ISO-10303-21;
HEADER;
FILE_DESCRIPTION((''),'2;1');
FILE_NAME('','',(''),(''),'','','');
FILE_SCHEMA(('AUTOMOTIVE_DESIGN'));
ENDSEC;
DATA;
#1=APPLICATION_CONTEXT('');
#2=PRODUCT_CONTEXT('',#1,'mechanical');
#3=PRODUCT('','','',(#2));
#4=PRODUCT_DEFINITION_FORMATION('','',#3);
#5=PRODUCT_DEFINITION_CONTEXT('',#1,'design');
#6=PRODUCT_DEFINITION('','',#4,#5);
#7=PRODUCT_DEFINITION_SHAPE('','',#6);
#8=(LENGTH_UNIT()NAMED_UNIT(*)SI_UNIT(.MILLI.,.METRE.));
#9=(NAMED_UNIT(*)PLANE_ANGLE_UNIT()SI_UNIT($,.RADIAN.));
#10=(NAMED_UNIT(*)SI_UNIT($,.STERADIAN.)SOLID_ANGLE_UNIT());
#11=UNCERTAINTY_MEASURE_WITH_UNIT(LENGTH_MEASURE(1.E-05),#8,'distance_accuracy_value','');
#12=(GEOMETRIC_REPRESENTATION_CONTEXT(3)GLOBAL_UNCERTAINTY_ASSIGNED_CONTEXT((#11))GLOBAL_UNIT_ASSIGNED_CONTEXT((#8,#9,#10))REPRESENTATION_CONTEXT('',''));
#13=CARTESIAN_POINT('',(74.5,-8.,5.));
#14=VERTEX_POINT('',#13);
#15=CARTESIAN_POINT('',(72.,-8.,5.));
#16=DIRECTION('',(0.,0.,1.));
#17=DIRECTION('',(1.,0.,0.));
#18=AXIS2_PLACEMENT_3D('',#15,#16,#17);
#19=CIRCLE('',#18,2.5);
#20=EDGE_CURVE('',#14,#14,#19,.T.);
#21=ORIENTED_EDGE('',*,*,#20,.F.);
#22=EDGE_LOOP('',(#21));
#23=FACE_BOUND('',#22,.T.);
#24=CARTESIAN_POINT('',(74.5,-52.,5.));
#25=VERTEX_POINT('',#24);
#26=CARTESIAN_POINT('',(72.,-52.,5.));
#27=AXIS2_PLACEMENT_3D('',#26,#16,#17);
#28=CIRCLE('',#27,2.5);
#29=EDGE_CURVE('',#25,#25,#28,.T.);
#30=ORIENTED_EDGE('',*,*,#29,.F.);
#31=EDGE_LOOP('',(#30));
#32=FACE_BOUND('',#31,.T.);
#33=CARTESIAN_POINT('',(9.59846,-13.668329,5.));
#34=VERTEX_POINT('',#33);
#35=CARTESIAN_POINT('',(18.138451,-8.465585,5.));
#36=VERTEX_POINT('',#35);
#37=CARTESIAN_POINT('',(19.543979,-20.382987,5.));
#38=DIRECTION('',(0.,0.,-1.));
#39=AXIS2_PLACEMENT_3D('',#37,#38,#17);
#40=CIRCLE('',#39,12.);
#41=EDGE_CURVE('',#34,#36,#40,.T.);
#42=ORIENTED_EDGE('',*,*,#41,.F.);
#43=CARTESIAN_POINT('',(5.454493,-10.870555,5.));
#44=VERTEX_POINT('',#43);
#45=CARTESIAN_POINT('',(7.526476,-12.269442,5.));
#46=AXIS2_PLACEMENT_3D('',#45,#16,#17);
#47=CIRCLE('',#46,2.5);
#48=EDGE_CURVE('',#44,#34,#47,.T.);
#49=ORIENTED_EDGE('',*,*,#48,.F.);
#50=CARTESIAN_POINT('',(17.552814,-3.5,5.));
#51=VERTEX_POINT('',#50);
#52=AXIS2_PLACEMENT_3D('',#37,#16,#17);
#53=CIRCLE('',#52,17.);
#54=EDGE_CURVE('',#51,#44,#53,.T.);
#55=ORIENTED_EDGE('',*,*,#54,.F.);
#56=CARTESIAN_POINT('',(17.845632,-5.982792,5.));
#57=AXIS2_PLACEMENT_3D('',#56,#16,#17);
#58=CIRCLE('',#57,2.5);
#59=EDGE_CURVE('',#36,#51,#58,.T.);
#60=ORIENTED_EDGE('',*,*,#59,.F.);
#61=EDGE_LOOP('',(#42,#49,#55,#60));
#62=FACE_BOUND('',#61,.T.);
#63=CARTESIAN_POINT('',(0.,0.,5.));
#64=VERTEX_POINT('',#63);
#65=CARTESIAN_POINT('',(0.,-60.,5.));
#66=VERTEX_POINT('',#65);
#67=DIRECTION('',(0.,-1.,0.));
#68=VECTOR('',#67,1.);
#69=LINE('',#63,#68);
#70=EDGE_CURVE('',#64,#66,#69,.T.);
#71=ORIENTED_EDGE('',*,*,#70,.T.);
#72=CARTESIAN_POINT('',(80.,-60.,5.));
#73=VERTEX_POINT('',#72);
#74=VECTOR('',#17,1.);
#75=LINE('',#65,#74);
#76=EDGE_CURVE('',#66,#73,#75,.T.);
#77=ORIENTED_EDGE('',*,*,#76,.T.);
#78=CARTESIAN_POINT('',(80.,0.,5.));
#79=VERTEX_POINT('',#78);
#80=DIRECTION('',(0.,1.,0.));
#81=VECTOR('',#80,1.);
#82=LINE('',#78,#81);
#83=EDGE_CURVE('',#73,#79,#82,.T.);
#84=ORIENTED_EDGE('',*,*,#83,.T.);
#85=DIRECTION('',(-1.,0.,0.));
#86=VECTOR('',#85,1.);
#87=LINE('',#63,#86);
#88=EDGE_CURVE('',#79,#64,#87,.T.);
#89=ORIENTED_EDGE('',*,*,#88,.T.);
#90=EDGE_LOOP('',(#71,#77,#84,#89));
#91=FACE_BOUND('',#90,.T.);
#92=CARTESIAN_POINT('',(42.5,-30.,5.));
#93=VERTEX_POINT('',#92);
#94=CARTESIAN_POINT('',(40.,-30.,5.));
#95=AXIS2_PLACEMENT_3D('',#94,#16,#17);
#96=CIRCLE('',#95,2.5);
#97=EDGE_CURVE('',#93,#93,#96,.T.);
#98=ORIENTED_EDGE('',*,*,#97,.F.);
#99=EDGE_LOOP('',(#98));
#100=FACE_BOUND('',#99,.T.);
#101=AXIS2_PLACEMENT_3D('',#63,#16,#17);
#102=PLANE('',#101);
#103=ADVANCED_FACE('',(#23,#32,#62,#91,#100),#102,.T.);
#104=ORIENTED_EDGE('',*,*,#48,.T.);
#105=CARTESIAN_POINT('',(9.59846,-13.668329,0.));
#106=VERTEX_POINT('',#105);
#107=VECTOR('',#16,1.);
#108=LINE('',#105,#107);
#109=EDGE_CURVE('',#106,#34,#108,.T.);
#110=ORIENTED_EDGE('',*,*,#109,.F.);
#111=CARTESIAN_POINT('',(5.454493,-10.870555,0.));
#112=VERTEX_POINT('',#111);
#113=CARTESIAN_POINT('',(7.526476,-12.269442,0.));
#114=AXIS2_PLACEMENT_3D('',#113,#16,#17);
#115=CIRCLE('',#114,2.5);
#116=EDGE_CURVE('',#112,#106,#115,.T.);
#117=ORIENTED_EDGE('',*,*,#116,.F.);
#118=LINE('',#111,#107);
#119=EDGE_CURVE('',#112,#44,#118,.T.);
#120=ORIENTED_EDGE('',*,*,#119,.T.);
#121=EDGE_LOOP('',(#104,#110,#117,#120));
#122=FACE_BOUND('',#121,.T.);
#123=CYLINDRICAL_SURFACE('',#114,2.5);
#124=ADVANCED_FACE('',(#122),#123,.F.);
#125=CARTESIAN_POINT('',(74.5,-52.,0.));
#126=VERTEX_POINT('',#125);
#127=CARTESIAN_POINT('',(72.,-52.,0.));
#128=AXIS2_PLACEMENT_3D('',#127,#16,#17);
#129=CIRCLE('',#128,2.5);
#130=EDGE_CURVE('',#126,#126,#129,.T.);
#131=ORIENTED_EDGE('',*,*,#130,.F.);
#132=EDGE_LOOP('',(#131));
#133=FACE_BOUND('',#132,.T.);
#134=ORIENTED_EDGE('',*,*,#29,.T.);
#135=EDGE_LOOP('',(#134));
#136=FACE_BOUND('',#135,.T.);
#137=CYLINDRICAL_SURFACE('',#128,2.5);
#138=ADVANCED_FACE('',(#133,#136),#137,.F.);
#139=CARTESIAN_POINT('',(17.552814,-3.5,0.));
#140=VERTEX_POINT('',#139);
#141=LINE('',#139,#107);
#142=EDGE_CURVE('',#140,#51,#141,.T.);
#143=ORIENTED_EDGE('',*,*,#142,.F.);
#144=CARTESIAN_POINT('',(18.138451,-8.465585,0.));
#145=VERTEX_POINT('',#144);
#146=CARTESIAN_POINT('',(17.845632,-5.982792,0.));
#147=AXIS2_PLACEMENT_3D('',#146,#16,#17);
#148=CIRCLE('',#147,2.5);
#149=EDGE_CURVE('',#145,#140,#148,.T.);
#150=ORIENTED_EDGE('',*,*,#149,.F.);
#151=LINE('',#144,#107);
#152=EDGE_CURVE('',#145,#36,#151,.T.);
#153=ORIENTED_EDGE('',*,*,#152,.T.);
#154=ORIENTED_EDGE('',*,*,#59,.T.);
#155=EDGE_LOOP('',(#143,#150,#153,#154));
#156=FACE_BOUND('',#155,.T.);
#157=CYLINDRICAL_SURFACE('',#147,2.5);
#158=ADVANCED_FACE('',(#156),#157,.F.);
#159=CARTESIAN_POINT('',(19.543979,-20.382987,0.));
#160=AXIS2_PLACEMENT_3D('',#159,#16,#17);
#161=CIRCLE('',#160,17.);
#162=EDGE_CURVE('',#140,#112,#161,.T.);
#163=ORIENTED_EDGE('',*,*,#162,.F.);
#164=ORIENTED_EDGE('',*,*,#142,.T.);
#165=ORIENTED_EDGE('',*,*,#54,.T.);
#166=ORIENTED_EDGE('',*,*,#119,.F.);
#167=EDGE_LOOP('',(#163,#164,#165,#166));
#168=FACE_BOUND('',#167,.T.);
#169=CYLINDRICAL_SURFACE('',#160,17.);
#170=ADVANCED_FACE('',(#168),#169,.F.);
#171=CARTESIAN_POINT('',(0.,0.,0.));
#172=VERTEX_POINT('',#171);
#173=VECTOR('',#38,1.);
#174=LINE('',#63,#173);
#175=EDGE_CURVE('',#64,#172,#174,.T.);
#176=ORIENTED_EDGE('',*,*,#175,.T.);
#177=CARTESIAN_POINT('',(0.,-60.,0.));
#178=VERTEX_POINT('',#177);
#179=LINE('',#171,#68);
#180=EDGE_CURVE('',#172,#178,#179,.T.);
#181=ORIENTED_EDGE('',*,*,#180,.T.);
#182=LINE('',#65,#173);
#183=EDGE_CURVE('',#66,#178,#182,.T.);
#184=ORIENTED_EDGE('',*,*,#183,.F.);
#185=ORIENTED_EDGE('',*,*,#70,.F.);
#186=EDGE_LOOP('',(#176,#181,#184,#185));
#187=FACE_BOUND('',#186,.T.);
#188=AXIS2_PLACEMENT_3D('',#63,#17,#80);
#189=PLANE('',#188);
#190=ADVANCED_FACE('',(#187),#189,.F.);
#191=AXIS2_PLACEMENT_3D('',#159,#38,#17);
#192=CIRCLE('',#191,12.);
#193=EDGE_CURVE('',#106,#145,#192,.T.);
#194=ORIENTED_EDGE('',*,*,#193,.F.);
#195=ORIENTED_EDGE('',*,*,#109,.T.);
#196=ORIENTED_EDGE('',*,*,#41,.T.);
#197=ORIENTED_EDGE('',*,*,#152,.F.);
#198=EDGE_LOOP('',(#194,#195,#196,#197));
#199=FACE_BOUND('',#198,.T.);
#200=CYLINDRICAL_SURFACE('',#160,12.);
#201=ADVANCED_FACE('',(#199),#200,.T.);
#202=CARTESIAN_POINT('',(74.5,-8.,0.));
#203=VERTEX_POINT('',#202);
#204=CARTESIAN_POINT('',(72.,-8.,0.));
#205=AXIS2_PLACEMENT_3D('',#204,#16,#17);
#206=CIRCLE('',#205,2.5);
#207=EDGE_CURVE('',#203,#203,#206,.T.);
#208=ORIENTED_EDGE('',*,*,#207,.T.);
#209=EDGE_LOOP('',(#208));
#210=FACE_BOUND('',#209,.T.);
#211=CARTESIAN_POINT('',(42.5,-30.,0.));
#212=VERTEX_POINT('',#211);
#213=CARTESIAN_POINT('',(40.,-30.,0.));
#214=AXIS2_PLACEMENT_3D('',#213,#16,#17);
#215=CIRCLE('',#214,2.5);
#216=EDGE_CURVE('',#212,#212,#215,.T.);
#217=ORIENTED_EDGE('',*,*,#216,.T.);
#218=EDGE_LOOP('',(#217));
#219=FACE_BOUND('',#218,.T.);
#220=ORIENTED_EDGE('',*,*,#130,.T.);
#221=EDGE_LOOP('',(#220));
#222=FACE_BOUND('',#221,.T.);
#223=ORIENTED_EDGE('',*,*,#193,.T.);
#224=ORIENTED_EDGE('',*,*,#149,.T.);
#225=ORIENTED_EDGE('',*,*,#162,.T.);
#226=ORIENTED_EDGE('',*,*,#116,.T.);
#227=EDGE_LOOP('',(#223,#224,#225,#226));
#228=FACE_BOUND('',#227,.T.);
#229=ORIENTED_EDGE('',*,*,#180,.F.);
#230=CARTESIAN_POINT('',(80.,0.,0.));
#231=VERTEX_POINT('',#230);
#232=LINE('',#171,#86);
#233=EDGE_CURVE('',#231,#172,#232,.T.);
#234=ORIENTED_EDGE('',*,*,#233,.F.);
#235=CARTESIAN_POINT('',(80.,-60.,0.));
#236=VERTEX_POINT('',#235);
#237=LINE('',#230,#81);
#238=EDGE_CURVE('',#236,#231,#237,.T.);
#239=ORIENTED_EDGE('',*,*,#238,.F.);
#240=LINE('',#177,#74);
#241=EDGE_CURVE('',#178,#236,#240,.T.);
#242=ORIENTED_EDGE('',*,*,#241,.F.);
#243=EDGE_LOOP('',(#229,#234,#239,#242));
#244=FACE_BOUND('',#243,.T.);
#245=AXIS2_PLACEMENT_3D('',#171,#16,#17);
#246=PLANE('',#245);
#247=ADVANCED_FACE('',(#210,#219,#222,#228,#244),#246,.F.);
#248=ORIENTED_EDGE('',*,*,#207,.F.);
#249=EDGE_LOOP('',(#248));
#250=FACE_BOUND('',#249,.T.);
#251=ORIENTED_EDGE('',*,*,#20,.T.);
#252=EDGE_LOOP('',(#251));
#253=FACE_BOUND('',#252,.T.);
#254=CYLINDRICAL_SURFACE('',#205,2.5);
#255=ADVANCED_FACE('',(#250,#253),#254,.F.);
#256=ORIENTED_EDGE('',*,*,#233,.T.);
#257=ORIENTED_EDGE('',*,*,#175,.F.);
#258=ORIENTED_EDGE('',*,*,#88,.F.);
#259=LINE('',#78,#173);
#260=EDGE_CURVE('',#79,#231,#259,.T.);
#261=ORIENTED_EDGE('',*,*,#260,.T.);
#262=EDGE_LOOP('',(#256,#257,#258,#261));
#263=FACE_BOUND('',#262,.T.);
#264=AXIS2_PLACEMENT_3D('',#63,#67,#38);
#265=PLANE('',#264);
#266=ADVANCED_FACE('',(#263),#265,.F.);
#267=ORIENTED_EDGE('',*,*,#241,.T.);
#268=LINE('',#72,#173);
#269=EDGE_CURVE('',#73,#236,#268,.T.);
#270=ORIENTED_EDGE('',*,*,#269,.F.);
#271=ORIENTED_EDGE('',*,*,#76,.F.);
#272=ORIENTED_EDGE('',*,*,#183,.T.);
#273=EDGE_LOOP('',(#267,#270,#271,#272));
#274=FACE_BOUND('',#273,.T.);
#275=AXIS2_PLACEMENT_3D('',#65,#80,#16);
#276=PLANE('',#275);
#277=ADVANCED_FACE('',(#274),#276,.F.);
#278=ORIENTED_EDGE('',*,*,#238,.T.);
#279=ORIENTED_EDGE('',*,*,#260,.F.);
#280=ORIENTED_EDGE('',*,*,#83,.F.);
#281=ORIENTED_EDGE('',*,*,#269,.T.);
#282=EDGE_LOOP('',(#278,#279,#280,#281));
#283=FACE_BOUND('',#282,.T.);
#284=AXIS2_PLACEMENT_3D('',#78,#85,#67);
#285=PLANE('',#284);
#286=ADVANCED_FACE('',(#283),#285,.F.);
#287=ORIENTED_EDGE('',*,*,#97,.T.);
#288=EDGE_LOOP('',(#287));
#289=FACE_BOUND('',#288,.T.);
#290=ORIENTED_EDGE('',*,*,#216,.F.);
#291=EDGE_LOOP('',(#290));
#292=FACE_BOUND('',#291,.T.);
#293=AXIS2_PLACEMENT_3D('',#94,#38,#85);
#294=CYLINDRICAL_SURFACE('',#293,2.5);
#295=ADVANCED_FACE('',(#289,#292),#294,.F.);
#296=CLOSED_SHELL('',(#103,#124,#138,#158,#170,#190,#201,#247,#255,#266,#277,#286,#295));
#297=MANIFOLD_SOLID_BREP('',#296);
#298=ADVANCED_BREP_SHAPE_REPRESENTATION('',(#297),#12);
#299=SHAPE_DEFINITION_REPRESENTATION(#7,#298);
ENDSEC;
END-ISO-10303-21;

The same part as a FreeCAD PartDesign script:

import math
import FreeCAD as App
import Part
import Sketcher

V = App.Vector
Q = App.Units.Quantity

doc = App.newDocument("Part")
body = doc.addObject("PartDesign::Body", "Body")

sketch1 = doc.addObject("Sketcher::SketchObject", "Sketch")
body.addObject(sketch1)
sketch1.AttachmentSupport = (doc.XY_Plane, [""])
sketch1.MapMode = "FlatFace"
sketch1.addGeometry(Part.LineSegment(V(0, 0, 0), V(0, -60, 0)), False)
sketch1.addGeometry(Part.LineSegment(V(0, -60, 0), V(80, -60, 0)), False)
sketch1.addGeometry(Part.LineSegment(V(80, -60, 0), V(80, 0, 0)), False)
sketch1.addGeometry(Part.LineSegment(V(80, 0, 0), V(0, 0, 0)), False)
sketch1.addGeometry(Part.Circle(V(40, -30, 0), V(0, 0, 1), 2.5), False)
sketch1.addConstraint(Sketcher.Constraint("Coincident", 0, 2, 1, 1))
sketch1.addConstraint(Sketcher.Constraint("Coincident", 1, 2, 2, 1))
sketch1.addConstraint(Sketcher.Constraint("Coincident", 2, 2, 3, 1))
sketch1.addConstraint(Sketcher.Constraint("Coincident", 3, 2, 0, 1))
sketch1.addConstraint(Sketcher.Constraint("Vertical", 0))
sketch1.addConstraint(Sketcher.Constraint("Horizontal", 1))
sketch1.addConstraint(Sketcher.Constraint("Vertical", 2))
sketch1.addConstraint(Sketcher.Constraint("Horizontal", 3))
sketch1.addConstraint(Sketcher.Constraint("Coincident", 3, 2, -1, 1))
sketch1.addConstraint(Sketcher.Constraint("Diameter", 4, Q("5 mm")))
sketch1.addConstraint(Sketcher.Constraint("DistanceX", 1, 1, 1, 2, Q("80 mm")))
sketch1.addConstraint(Sketcher.Constraint("DistanceY", 0, 2, 0, 1, Q("60 mm")))
sketch1.addConstraint(Sketcher.Constraint("DistanceX", -1, 1, 4, 3, Q("40 mm")))
sketch1.addConstraint(Sketcher.Constraint("DistanceY", 4, 3, -1, 1, Q("30 mm")))
pad1 = doc.addObject("PartDesign::Pad", "Pad")
body.addObject(pad1)
pad1.Profile = sketch1
pad1.Length = 5

sketch2 = doc.addObject("Sketcher::SketchObject", "Sketch001")
body.addObject(sketch2)
sketch2.AttachmentSupport = (doc.XY_Plane, [""])
sketch2.MapMode = "FlatFace"
sketch2.AttachmentOffset = App.Placement(V(0, 0, 5), App.Rotation())
sketch2.addGeometry(Part.Circle(V(72, -52, 0), V(0, 0, 1), 2.5), False)
sketch2.addGeometry(Part.Circle(V(72, -8, 0), V(0, 0, 1), 2.5), False)
sketch2.addGeometry(Part.ArcOfCircle(Part.Circle(V(19.5, -20.4, 0), V(0, 0, 1), 17), math.radians(97), math.radians(146)), False)
sketch2.addGeometry(Part.ArcOfCircle(Part.Circle(V(7.5, -12.3, 0), V(0, 0, 1), 2.5), math.radians(146), math.radians(326)), False)
sketch2.addGeometry(Part.ArcOfCircle(Part.Circle(V(19.5, -20.4, 0), V(0, 0, 1), 12), math.radians(97), math.radians(146)), False)
sketch2.addGeometry(Part.ArcOfCircle(Part.Circle(V(17.8, -6, 0), V(0, 0, 1), 2.5), math.radians(-83), math.radians(97)), False)
sketch2.addConstraint(Sketcher.Constraint("Tangent", 2, 2, 3, 1))
sketch2.addConstraint(Sketcher.Constraint("Tangent", 3, 2, 4, 2))
sketch2.addConstraint(Sketcher.Constraint("Tangent", 4, 1, 5, 1))
sketch2.addConstraint(Sketcher.Constraint("Tangent", 5, 2, 2, 1))
sketch2.addConstraint(Sketcher.Constraint("Coincident", 4, 3, 2, 3))
sketch2.addConstraint(Sketcher.Constraint("Equal", 0, 1))
sketch2.addConstraint(Sketcher.Constraint("Equal", 1, 3))
sketch2.addConstraint(Sketcher.Constraint("Vertical", 0, 3, 1, 3))
sketch2.addConstraint(Sketcher.Constraint("Diameter", 0, Q("5 mm")))
sketch2.addConstraint(Sketcher.Constraint("Radius", 2, Q("17 mm")))
sketch2.addConstraint(Sketcher.Constraint("DistanceX", -1, 1, 0, 3, Q("72 mm")))
sketch2.addConstraint(Sketcher.Constraint("DistanceY", 0, 3, -1, 1, Q("52 mm")))
sketch2.addConstraint(Sketcher.Constraint("DistanceY", 1, 3, -1, 1, Q("8 mm")))
sketch2.addConstraint(Sketcher.Constraint("DistanceY", 5, 2, -1, 1, Q("3.5 mm")))
sketch2.addConstraint(Sketcher.Constraint("DistanceX", -1, 1, 2, 3, Q("19.543979 mm")))
sketch2.addConstraint(Sketcher.Constraint("DistanceY", 3, 3, -1, 1, Q("12.269442 mm")))
sketch2.addConstraint(Sketcher.Constraint("DistanceX", -1, 1, 3, 2, Q("9.59846 mm")))
pocket1 = doc.addObject("PartDesign::Pocket", "Pocket")
body.addObject(pocket1)
pocket1.Profile = sketch2
pocket1.Type = "ThroughAll"

doc.recompute()
